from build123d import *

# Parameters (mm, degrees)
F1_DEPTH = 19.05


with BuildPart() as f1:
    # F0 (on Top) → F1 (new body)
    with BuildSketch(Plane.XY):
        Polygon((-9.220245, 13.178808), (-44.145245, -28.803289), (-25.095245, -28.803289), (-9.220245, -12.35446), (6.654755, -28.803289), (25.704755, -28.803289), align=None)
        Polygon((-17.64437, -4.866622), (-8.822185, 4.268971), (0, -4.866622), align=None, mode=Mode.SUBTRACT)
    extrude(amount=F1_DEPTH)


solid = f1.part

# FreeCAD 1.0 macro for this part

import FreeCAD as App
import Part
import Sketcher
from FreeCAD import Vector
Q = App.Units.Quantity

doc = App.newDocument("Part")
body = doc.addObject("PartDesign::Body", "Body")

# Sketch on XY plane
sketch1 = doc.addObject("Sketcher::SketchObject", "Sketch")
body.addObject(sketch1)
sketch1.AttachmentSupport = (doc.XY_Plane, [""])
sketch1.MapMode = "FlatFace"
sketch1.addGeometry([
    Part.LineSegment(Vector(-9, 13, 0), Vector(-44, -29, 0)),  # 0
    Part.LineSegment(Vector(-44, -29, 0), Vector(-25, -29, 0)),  # 1
    Part.LineSegment(Vector(-25, -29, 0), Vector(-9, -12, 0)),  # 2
    Part.LineSegment(Vector(-9, -12, 0), Vector(7, -29, 0)),  # 3
    Part.LineSegment(Vector(7, -29, 0), Vector(26, -29, 0)),  # 4
    Part.LineSegment(Vector(26, -29, 0), Vector(-9, 13, 0)),  # 5
    Part.LineSegment(Vector(0, -5, 0), Vector(-18, -5, 0)),  # 6
    Part.LineSegment(Vector(-18, -5, 0), Vector(-9, 4, 0)),  # 7
    Part.LineSegment(Vector(-9, 4, 0), Vector(0, -5, 0)),  # 8
], False)
sketch1.addConstraint([
    Sketcher.Constraint("Coincident", 0, 2, 1, 1),
    Sketcher.Constraint("Coincident", 1, 2, 2, 1),
    Sketcher.Constraint("Coincident", 2, 2, 3, 1),
    Sketcher.Constraint("Coincident", 3, 2, 4, 1),
    Sketcher.Constraint("Coincident", 4, 2, 5, 1),
    Sketcher.Constraint("Coincident", 5, 2, 0, 1),
    Sketcher.Constraint("Coincident", 6, 2, 7, 1),
    Sketcher.Constraint("Coincident", 7, 2, 8, 1),
    Sketcher.Constraint("Coincident", 8, 2, 6, 1),
    Sketcher.Constraint("Horizontal", 1),
    Sketcher.Constraint("Horizontal", 4),
    Sketcher.Constraint("Horizontal", 6),
    Sketcher.Constraint("PointOnObject", 8, 2, -2),
    Sketcher.Constraint("Horizontal", 1, 2, 3, 2),
    Sketcher.Constraint("Vertical", 2, 2, 5, 2),
    Sketcher.Constraint("Equal", 1, 4),
    Sketcher.Constraint("Equal", 2, 3),
    Sketcher.Constraint("Equal", 7, 8),
    Sketcher.Constraint("DistanceX", 0, 2, 3, 2, Q("2 in")),
    Sketcher.Constraint("Distance", 2, Q("0.9 in")),
    Sketcher.Constraint("Distance", 7, Q("0.5 in")),
    Sketcher.Constraint("DistanceX", 1, 1, 1, 2, Q("0.75 in")),
    Sketcher.Constraint("Distance", 0, Q("2.15 in")),
    Sketcher.Constraint("DistanceX", 6, 2, 6, 1, 17.64437),
    Sketcher.Constraint("DistanceY", 0, 2, -1, 1, 28.803289),
    Sketcher.Constraint("DistanceY", 6, 2, -1, 1, 4.866622),
    Sketcher.Constraint("DistanceX", 5, 2, 7, 2, 0.39806),
])
pad1 = doc.addObject("PartDesign::Pad", "Pad")
body.addObject(pad1)
pad1.Profile = sketch1
pad1.Length = Q("0.75 in")

doc.recompute()
